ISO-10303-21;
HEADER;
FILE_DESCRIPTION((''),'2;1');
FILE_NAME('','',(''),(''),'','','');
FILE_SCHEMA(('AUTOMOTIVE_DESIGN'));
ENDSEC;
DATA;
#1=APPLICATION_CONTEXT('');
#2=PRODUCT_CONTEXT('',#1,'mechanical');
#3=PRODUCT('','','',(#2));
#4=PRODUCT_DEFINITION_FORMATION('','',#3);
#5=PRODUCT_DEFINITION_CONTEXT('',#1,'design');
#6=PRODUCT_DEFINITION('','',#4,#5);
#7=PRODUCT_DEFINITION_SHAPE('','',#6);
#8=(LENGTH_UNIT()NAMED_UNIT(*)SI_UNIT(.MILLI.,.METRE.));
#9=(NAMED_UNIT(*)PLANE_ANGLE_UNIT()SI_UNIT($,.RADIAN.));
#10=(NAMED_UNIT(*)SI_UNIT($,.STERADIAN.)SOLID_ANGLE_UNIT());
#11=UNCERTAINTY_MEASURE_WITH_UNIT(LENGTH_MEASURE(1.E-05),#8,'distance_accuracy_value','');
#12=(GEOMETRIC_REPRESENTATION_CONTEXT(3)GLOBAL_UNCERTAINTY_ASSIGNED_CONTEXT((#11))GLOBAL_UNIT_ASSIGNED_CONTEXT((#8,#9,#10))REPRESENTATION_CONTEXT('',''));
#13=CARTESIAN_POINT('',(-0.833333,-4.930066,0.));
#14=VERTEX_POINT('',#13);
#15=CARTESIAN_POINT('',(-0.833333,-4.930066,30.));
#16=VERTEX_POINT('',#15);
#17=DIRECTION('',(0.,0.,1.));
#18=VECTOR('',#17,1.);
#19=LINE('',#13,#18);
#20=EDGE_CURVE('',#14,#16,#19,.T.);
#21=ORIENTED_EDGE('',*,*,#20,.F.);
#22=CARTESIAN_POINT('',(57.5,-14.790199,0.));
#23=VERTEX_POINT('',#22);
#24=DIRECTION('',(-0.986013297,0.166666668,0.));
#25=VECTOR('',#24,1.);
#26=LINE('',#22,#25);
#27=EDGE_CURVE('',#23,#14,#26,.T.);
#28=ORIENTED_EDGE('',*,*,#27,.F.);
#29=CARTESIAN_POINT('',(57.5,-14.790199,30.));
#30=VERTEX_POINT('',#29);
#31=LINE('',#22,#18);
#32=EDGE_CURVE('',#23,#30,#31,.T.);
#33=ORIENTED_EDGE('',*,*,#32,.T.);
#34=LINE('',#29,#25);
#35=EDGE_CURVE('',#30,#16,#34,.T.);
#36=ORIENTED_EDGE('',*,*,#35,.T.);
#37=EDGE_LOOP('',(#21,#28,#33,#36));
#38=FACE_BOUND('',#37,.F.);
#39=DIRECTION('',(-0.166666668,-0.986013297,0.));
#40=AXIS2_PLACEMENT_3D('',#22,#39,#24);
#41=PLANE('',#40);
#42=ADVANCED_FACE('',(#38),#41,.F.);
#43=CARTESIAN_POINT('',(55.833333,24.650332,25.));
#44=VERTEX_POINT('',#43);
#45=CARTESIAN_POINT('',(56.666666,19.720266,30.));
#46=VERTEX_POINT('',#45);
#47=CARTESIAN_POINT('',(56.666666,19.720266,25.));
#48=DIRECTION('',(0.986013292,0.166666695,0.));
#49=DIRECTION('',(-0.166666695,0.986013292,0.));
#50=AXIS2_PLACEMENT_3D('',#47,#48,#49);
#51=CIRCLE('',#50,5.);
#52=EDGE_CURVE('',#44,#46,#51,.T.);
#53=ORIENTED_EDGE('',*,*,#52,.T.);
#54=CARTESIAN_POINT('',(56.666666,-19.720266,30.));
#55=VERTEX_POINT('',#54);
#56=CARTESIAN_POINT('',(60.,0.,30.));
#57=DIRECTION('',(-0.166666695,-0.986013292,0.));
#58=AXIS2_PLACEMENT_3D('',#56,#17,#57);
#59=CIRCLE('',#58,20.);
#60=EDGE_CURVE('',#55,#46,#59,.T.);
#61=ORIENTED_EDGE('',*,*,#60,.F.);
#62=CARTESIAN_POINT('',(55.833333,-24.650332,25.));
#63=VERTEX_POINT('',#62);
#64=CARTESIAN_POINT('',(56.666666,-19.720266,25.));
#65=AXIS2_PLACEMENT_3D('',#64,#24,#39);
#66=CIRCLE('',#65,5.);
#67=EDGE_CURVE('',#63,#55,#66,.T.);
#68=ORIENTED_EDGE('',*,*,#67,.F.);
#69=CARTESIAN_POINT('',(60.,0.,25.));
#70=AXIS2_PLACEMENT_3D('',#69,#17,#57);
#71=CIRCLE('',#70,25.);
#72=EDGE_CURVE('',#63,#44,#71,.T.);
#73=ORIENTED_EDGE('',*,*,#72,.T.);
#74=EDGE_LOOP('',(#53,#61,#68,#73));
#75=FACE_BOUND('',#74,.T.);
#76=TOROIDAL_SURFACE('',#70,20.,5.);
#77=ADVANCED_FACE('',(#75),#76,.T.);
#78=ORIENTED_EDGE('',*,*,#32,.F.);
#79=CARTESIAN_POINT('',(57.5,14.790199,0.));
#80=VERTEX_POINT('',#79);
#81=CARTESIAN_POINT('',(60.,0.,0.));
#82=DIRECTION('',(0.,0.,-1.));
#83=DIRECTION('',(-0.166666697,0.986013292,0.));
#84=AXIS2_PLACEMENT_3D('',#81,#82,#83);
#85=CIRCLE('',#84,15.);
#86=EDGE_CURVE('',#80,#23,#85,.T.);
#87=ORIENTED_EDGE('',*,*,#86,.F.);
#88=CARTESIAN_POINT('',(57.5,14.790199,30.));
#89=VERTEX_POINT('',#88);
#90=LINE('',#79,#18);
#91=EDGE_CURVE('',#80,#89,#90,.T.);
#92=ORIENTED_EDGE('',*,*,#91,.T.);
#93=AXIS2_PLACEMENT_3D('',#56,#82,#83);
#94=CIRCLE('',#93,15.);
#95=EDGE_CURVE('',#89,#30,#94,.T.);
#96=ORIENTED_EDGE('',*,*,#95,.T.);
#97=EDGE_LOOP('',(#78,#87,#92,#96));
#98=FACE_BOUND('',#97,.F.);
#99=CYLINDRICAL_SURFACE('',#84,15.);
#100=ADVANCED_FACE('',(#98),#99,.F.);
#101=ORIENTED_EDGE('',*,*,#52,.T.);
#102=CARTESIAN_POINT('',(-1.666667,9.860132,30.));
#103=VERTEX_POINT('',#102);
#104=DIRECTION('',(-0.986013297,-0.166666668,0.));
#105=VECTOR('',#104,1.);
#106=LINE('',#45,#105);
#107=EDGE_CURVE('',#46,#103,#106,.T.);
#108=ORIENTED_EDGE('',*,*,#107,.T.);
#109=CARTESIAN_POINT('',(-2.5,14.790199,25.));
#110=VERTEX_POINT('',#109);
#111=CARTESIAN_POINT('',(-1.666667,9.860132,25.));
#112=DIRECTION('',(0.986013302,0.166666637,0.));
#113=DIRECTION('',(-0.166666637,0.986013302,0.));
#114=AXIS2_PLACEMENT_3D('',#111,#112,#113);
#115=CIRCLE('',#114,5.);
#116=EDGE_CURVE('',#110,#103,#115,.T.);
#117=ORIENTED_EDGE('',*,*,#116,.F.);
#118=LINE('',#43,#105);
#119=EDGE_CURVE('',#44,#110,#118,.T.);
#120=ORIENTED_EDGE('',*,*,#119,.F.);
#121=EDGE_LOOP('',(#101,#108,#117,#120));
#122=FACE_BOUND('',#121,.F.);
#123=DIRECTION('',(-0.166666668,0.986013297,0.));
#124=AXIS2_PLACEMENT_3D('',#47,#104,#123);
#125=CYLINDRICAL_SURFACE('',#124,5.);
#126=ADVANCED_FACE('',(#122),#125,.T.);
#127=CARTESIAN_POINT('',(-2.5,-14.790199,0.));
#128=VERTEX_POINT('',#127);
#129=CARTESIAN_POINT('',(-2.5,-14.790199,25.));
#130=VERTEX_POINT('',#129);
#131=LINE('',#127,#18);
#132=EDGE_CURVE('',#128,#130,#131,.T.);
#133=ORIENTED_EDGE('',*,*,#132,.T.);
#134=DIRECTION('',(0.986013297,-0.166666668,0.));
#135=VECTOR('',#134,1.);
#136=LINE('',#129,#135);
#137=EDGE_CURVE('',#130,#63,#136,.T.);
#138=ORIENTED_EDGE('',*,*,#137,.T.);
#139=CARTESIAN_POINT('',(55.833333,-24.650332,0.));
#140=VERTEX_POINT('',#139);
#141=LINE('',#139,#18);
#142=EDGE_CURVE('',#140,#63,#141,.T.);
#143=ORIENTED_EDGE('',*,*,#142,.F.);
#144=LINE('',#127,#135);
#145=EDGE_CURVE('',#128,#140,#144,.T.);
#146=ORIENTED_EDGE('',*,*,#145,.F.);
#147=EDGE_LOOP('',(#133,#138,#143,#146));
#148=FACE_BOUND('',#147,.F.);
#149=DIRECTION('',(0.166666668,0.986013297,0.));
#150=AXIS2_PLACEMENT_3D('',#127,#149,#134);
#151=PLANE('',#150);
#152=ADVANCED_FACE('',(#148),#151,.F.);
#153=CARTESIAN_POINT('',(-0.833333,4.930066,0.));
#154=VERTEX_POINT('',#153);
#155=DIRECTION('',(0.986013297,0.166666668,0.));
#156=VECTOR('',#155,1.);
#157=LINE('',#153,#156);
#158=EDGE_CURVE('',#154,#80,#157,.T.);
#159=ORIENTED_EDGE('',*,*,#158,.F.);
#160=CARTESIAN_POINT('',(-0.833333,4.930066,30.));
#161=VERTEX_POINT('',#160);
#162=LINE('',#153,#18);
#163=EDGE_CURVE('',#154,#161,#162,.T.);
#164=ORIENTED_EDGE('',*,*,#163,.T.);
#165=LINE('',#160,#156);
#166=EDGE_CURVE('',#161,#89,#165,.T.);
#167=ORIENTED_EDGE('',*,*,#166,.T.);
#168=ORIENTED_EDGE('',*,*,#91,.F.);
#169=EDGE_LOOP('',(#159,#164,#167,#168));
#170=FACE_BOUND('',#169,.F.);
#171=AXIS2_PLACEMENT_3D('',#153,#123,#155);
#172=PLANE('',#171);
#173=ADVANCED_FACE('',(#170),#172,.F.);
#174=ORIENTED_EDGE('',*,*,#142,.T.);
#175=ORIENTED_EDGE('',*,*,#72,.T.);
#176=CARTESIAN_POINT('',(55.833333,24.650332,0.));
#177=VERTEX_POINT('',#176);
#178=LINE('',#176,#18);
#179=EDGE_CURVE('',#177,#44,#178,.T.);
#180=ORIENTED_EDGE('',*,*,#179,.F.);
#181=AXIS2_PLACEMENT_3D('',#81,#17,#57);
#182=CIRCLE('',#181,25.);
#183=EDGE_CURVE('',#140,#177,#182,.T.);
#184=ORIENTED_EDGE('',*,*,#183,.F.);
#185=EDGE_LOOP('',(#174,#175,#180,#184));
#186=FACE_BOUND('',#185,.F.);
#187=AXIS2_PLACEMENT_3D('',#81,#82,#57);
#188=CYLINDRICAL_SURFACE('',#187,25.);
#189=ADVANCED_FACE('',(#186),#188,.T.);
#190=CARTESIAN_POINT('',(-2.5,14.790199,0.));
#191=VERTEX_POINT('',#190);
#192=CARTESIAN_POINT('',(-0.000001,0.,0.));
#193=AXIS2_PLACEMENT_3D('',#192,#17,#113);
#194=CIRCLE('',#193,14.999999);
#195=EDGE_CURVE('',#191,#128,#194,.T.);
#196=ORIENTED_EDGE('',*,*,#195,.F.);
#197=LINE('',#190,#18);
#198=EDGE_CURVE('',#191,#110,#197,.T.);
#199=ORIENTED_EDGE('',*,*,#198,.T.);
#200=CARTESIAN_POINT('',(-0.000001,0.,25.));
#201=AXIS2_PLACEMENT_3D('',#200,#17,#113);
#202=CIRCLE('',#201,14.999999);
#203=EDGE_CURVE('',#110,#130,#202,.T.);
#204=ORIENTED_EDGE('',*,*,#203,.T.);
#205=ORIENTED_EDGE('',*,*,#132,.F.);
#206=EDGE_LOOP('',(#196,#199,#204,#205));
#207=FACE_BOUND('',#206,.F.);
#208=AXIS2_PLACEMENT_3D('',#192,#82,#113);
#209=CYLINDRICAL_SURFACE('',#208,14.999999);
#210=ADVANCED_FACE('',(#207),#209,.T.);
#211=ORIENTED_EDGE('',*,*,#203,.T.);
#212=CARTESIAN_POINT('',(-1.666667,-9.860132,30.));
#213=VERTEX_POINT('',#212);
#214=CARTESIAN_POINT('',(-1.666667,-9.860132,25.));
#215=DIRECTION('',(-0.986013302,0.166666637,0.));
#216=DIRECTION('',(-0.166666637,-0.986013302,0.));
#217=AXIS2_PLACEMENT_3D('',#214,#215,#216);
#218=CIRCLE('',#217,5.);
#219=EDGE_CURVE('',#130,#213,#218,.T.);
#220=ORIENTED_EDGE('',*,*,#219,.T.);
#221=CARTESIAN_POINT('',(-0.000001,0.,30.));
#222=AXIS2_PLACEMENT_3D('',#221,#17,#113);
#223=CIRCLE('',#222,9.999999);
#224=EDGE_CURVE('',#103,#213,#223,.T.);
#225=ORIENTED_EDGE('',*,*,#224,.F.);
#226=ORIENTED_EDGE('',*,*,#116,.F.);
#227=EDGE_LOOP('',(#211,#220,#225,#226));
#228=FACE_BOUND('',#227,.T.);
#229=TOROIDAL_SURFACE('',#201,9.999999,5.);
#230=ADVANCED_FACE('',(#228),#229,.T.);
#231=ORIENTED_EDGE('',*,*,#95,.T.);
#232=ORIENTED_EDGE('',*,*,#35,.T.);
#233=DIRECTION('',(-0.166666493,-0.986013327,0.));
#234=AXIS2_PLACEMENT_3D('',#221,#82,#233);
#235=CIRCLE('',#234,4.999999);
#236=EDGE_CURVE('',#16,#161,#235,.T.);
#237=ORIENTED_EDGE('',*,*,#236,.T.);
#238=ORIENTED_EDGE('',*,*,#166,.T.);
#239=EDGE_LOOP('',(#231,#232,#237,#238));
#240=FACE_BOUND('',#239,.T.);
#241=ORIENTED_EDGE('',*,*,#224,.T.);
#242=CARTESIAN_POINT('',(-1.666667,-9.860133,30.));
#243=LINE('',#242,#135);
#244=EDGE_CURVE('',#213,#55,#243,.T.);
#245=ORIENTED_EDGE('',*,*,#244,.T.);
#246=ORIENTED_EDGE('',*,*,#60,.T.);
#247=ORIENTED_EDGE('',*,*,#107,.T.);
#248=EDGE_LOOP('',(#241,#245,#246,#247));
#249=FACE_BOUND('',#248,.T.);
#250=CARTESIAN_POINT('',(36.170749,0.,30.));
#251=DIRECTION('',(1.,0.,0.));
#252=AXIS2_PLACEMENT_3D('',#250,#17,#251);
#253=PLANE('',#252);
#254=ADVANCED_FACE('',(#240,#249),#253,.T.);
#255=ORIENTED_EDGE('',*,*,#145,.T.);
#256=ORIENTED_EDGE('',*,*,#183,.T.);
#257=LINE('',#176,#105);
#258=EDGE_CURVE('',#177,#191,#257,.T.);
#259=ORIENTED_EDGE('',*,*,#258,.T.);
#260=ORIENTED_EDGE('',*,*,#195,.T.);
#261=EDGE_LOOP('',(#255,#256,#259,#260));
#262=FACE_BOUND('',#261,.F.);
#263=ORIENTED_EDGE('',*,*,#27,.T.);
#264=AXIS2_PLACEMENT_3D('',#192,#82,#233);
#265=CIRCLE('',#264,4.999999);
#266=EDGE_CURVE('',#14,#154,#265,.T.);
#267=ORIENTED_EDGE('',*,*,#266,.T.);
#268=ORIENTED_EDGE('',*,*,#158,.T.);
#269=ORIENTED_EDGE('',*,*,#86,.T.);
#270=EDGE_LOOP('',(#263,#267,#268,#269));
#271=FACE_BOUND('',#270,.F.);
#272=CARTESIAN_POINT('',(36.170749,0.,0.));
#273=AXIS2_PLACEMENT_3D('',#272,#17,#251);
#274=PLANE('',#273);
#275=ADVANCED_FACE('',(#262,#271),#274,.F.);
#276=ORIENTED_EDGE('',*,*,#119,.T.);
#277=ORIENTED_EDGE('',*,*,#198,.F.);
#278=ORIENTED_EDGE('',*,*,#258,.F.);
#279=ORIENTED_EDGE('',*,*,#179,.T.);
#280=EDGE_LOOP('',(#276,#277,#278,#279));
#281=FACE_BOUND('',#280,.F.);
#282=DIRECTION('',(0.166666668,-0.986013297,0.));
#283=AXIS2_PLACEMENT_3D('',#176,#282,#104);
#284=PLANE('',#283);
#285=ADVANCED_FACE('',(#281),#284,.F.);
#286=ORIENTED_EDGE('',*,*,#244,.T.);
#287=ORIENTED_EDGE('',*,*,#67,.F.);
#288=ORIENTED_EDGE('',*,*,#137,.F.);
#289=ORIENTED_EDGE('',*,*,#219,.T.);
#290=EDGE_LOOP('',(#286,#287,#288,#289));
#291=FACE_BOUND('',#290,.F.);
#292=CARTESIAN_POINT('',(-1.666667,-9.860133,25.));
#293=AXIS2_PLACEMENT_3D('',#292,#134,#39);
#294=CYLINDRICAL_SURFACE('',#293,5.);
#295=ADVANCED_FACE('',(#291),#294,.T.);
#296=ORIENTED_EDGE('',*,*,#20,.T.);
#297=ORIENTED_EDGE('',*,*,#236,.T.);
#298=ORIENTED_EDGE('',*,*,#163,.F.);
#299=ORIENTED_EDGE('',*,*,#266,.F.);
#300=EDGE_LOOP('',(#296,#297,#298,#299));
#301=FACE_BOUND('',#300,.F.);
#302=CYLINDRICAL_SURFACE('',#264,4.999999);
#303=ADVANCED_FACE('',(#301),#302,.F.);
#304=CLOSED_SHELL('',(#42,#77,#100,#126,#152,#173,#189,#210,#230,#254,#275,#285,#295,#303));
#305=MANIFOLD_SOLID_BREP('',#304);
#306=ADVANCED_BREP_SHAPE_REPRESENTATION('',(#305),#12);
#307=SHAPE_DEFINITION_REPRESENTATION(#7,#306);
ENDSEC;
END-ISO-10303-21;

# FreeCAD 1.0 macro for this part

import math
import FreeCAD as App
import Part
import Sketcher
Q = App.Units.Quantity


def edges_at(feature, points):
    """Names of the edges that pass closest to the given points."""
    edges = feature.Shape.Edges
    near = lambda p: min(range(len(edges)), key=lambda i: edges[i].distToShape(Part.Vertex(*p))[0])
    return sorted({f"Edge{near(p) + 1}" for p in points})

doc = App.newDocument("Part")
body = doc.addObject("PartDesign::Body", "Body")

# Sketch on XY plane
sketch1 = body.newObject("Sketcher::SketchObject", "Sketch")
sketch1.AttachmentSupport = (doc.getObject("XY_Plane"), [""])
sketch1.MapMode = "FlatFace"
sketch1.addGeometry([
    Part.LineSegment(App.Vector(55.8, 24.7, 0), App.Vector(-2.5, 14.8, 0)),  # 0
    Part.ArcOfCircle(Part.Circle(App.Vector(0, 0, 0), App.Vector(0, 0, 1), 15), math.radians(100), math.radians(260)),  # 1
    Part.LineSegment(App.Vector(-2.5, -14.8, 0), App.Vector(55.8, -24.7, 0)),  # 2
    Part.ArcOfCircle(Part.Circle(App.Vector(60, 0, 0), App.Vector(0, 0, 1), 25), math.radians(-100), math.radians(100)),  # 3
    Part.LineSegment(App.Vector(57.5, -14.8, 0), App.Vector(-0.8, -4.9, 0)),  # 4
    Part.ArcOfCircle(Part.Circle(App.Vector(0, 0, 0), App.Vector(0, 0, 1), 5), math.radians(100), math.radians(260)),  # 5
    Part.LineSegment(App.Vector(-0.8, 4.9, 0), App.Vector(57.5, 14.8, 0)),  # 6
    Part.ArcOfCircle(Part.Circle(App.Vector(60, 0, 0), App.Vector(0, 0, 1), 15), math.radians(-100), math.radians(100)),  # 7
], False)
sketch1.addConstraint([
    Sketcher.Constraint("Tangent", 0, 2, 1, 1),
    Sketcher.Constraint("Tangent", 1, 2, 2, 1),
    Sketcher.Constraint("Tangent", 2, 2, 3, 1),
    Sketcher.Constraint("Tangent", 3, 2, 0, 1),
    Sketcher.Constraint("Tangent", 4, 2, 5, 2),
    Sketcher.Constraint("Tangent", 5, 1, 6, 1),
    Sketcher.Constraint("Tangent", 6, 2, 7, 2),
    Sketcher.Constraint("Tangent", 7, 1, 4, 1),
    Sketcher.Constraint("Coincident", 1, 3, -1, 1),
    Sketcher.Constraint("Coincident", 5, 3, -1, 1),
    Sketcher.Constraint("Coincident", 7, 3, 3, 3),
    Sketcher.Constraint("Equal", 1, 7),
    Sketcher.Constraint("PointOnObject", 3, 3, -1),
    Sketcher.Constraint("Parallel", 2, 4),
    Sketcher.Constraint("Radius", 1, Q("14.999999 mm")),
    Sketcher.Constraint("Radius", 3, Q("25 mm")),
    Sketcher.Constraint("DistanceX", -1, 1, 3, 3, Q("60 mm")),
])
pad1 = body.newObject("PartDesign::Pad", "Pad")
pad1.Profile = sketch1
pad1.Length = 30
doc.recompute()

fillet = body.newObject("PartDesign::Fillet", "Fillet")
fillet.Base = (pad1, edges_at(pad1, [
    (-15, 0, 30),
    (26.667, -19.72, 30),
    (85, 0, 30),
    (26.667, 19.72, 30),
]))
fillet.Radius = 5

doc.recompute()
